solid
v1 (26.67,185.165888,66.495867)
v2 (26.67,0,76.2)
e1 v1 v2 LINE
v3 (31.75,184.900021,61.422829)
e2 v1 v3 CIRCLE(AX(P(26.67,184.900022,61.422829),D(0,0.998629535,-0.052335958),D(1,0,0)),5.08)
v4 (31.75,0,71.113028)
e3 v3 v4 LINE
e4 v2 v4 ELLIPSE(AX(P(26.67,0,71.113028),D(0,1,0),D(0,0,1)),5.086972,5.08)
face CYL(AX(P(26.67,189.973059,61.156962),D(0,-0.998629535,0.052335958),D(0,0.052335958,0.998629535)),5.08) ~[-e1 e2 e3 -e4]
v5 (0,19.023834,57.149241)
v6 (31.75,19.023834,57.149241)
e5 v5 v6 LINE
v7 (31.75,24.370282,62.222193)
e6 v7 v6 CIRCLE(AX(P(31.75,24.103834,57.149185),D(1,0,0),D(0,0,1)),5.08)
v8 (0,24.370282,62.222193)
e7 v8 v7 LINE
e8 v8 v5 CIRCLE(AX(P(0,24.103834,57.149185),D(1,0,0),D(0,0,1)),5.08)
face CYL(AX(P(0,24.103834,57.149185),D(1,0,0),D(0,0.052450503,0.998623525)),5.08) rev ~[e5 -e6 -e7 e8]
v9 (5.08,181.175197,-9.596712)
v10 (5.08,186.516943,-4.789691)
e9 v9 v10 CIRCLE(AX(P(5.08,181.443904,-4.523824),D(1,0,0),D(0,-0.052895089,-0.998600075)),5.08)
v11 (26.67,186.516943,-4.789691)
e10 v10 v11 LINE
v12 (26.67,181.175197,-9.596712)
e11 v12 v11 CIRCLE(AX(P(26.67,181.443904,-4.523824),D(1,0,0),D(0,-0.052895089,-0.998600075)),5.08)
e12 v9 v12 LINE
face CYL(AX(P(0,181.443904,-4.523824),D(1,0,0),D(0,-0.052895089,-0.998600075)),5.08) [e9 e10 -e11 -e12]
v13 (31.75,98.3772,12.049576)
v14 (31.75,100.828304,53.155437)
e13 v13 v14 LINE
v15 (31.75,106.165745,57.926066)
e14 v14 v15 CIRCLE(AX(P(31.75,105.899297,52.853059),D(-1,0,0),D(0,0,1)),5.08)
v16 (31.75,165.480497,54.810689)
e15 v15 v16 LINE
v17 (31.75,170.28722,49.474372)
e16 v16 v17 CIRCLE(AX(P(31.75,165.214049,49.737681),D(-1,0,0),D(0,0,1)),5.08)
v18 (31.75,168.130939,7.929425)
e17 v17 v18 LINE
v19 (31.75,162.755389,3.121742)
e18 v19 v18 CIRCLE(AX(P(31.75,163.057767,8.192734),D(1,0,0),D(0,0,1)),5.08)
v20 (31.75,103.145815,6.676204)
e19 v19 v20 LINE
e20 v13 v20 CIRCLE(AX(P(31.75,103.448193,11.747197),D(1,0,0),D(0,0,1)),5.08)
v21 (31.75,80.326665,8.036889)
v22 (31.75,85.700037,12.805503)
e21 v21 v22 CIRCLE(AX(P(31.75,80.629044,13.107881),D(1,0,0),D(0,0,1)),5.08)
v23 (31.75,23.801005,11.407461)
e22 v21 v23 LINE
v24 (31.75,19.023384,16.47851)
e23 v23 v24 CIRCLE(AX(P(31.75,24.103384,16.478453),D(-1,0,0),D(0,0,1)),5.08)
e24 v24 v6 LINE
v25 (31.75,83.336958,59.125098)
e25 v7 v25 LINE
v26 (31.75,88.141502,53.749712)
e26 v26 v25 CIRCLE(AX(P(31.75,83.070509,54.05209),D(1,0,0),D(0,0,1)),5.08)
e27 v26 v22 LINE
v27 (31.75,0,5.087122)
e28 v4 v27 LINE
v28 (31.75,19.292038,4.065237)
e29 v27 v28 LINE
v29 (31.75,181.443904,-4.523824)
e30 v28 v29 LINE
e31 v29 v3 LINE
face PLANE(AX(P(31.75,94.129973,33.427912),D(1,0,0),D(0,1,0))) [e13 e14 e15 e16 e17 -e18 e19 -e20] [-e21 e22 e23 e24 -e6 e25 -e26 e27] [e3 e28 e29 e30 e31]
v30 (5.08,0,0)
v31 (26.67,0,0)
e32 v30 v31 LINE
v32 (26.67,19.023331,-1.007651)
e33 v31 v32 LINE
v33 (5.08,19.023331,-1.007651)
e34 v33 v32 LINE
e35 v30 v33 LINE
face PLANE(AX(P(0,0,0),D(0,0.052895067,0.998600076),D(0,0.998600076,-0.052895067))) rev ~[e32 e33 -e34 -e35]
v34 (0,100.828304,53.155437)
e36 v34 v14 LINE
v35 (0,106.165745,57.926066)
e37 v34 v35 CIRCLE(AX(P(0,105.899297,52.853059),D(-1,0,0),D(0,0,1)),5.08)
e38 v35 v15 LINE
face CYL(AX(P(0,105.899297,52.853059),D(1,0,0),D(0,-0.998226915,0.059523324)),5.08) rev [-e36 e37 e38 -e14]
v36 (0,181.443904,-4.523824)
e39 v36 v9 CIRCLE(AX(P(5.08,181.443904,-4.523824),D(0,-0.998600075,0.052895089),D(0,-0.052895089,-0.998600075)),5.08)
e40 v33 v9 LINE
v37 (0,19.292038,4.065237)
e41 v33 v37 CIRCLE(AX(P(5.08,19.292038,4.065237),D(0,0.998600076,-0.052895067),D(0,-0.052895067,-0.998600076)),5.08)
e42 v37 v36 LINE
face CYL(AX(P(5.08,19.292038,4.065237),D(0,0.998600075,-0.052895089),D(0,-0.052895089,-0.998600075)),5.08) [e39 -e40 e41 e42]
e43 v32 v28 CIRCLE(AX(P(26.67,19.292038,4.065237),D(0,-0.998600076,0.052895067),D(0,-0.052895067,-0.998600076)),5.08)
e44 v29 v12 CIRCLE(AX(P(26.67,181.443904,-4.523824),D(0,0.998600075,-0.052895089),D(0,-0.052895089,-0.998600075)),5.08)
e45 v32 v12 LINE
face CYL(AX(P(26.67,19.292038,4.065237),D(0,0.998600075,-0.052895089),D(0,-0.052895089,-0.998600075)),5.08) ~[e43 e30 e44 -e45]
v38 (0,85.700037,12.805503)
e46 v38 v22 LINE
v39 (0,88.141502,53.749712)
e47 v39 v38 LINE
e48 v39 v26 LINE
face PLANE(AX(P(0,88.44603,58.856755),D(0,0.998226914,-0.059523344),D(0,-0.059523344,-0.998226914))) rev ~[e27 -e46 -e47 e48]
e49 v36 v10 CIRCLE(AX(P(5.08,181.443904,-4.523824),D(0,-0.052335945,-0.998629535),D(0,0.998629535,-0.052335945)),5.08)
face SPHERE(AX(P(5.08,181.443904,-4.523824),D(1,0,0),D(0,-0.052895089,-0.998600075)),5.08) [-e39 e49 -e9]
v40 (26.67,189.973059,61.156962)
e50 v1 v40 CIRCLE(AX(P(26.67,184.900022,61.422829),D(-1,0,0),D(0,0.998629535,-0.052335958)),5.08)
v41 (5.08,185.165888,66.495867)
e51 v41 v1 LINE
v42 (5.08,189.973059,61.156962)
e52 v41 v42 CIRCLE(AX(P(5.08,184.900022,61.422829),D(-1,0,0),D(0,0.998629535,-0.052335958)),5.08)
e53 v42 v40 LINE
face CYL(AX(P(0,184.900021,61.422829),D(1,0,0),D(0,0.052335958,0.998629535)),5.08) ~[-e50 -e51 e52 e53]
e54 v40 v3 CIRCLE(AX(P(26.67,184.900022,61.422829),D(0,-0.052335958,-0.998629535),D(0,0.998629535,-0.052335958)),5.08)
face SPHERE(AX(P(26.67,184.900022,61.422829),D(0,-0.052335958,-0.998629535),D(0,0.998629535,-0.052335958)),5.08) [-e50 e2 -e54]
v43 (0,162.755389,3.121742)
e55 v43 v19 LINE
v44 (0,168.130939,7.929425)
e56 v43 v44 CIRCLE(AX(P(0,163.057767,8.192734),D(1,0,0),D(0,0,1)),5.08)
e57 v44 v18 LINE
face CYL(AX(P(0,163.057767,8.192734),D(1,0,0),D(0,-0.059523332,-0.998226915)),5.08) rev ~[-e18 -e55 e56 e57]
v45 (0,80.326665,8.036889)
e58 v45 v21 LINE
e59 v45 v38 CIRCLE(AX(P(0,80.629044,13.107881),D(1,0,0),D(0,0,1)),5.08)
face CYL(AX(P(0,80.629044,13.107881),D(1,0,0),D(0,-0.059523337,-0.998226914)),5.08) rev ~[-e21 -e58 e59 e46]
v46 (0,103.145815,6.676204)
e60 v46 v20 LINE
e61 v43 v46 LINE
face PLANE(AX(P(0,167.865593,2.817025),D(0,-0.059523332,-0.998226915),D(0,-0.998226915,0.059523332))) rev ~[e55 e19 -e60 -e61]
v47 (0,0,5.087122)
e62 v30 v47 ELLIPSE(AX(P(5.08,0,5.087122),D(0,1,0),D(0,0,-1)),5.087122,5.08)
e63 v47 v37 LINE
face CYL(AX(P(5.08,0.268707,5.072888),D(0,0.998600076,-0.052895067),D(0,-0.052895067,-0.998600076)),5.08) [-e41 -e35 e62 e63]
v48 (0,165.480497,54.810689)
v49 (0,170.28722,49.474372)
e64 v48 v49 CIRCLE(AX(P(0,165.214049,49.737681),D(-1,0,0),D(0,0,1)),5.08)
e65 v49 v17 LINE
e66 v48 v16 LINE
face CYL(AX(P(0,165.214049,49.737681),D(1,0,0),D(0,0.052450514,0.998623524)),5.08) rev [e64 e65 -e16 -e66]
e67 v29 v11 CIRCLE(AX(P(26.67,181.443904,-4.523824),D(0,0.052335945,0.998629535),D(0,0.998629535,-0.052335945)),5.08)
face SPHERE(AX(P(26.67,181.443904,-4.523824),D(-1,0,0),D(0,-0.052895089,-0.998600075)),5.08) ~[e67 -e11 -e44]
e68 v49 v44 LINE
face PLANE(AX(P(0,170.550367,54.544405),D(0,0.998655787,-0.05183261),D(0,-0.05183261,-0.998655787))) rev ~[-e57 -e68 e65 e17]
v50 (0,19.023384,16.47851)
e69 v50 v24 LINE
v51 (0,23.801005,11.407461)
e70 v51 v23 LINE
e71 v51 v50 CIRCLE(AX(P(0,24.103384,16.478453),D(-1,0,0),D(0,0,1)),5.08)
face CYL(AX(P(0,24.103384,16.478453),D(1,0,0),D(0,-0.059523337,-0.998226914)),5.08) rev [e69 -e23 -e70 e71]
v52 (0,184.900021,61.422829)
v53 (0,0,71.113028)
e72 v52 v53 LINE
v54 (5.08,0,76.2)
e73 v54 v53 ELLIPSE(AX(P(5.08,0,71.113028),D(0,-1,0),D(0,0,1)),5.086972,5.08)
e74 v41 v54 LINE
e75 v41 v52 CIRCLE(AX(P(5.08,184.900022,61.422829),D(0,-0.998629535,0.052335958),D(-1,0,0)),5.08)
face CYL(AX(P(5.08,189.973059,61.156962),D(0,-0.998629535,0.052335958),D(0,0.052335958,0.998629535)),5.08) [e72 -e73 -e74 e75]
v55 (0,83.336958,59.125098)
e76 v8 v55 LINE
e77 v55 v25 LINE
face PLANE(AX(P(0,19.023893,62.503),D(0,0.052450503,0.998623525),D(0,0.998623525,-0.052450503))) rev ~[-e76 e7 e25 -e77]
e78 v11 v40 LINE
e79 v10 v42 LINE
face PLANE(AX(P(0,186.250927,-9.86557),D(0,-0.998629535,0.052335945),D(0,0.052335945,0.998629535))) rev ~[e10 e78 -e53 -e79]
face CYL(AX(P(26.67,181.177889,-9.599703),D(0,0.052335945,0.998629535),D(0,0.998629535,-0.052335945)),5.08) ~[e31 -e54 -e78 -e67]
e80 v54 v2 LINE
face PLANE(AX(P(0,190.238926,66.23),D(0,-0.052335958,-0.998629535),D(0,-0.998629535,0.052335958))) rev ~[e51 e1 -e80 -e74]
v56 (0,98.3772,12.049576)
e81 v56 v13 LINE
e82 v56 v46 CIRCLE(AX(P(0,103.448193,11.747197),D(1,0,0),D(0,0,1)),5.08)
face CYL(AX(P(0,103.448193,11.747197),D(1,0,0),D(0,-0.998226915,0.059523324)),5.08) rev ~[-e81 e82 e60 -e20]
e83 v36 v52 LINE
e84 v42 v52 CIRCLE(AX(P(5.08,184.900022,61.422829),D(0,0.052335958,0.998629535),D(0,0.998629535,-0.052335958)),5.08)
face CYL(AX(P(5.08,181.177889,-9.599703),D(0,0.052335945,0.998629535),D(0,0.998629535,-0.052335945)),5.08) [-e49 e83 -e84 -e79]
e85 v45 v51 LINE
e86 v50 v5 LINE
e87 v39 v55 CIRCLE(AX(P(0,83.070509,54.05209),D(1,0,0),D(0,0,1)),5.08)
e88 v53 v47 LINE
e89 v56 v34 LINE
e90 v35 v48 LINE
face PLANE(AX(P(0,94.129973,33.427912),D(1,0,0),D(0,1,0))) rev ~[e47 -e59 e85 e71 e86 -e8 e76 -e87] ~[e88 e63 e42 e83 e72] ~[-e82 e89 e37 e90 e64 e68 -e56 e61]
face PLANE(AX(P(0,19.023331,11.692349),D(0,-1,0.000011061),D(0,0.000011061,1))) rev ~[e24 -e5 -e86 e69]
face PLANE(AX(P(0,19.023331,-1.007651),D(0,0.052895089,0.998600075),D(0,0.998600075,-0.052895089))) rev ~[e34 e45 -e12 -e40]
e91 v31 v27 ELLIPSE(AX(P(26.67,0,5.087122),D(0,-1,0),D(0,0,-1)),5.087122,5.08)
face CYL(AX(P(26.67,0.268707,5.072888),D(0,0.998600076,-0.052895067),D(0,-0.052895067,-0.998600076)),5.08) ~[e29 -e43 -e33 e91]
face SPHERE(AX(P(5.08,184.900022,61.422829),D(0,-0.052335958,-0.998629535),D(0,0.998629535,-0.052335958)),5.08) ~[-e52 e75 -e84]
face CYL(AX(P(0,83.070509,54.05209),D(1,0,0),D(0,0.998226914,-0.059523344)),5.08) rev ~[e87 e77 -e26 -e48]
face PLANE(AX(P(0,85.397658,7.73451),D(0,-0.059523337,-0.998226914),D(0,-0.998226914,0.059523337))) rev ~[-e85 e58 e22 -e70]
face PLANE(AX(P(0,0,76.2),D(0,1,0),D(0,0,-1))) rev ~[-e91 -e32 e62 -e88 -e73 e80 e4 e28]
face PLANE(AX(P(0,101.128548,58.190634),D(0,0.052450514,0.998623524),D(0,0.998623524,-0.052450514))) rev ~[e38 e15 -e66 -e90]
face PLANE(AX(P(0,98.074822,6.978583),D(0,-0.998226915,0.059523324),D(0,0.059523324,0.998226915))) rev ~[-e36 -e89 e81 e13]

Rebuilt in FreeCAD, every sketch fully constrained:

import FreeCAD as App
import Part
import Sketcher
from FreeCAD import Vector
Q = App.Units.Quantity


def edges_at(feature, points):
    """Names of the edges that pass closest to the given points."""
    edges = feature.Shape.Edges
    near = lambda p: min(range(len(edges)), key=lambda i: edges[i].distToShape(Part.Vertex(*p))[0])
    return sorted({f"Edge{near(p) + 1}" for p in points})


def add_polygon(sketch, points):
    """Adds a closed chain of lines whose ends are joined by coincident constraints."""
    first, n = sketch.GeometryCount, len(points)
    for a, b in zip(points, points[1:] + points[:1]):
        sketch.addGeometry(Part.LineSegment(App.Vector(*a, 0), App.Vector(*b, 0)), False)
    for i in range(n):
        sketch.addConstraint(Sketcher.Constraint("Coincident", first + i, 2, first + (i + 1) % n, 1))

doc = App.newDocument("Part")
body = doc.addObject("PartDesign::Body", "Body")

sketch1 = doc.addObject("Sketcher::SketchObject", "Sketch")
body.addObject(sketch1)
sketch1.AttachmentSupport = (doc.YZ_Plane, [""])
sketch1.MapMode = "FlatFace"
add_polygon(sketch1, [(0, 0), (19.023331, -1.007651), (186.250927, -9.86557), (190.238926, 66.23), (0, 76.2)])
add_polygon(sketch1, [(98.074822, 6.978583), (101.128548, 58.190634), (170.550367, 54.544405), (167.865593, 2.817025)])
add_polygon(sketch1, [(85.397658, 7.73451), (19.023331, 11.692349), (19.023893, 62.503), (88.44603, 58.856755)])
sketch1.addConstraint([
    Sketcher.Constraint("Vertical", 4),
    Sketcher.Constraint("Coincident", 4, 2, -1, 1),
    Sketcher.Constraint("DistanceY", 4, 2, 4, 1, Q("3 in")),
    Sketcher.Constraint("Distance", 2, Q("3 in")),
    Sketcher.Constraint("Distance", 3, Q("7.5 in")),
    Sketcher.Constraint("DistanceY", 0, 2, 9, 2, Q("0.5 in")),
    Sketcher.Constraint("Distance", 0, Q("0.75 in")),
    Sketcher.Constraint("DistanceX", 8, 2, 1, 2, Q("3.4715002 in")),
    Sketcher.Constraint("DistanceY", -1, 1, 2, 2, Q("66.23 mm")),
    Sketcher.Constraint("DistanceY", -1, 1, 10, 2, Q("62.503 mm")),
    Sketcher.Constraint("DistanceX", 1, 2, 2, 2, Q("3.987999 mm")),
    Sketcher.Constraint("DistanceX", 9, 2, 11, 2, Q("69.422699 mm")),
    Sketcher.Constraint("Distance", 6, Q("69.517508 mm")),
    Sketcher.Constraint("Distance", 10, Q("50.810651 mm")),
    Sketcher.Constraint("Distance", 12, Q("51.21305 mm")),
    Sketcher.Constraint("DistanceX", -1, 1, 9, 2, Q("19.023331 mm")),
    Sketcher.Constraint("DistanceX", -1, 1, 12, 2, Q("85.397658 mm")),
    Sketcher.Constraint("DistanceY", -1, 1, 12, 2, Q("7.73451 mm")),
    Sketcher.Constraint("DistanceX", 5, 2, 1, 2, Q("85.122379 mm")),
    Sketcher.Constraint("DistanceX", 6, 2, 2, 2, Q("19.688559 mm")),
    Sketcher.Constraint("DistanceY", 7, 2, 6, 2, Q("51.72738 mm")),
    Sketcher.Constraint("DistanceX", 0, 2, 7, 2, Q("148.842262 mm")),
    Sketcher.Constraint("DistanceY", 8, 2, 5, 2, Q("51.212051 mm")),
    Sketcher.Constraint("DistanceY", 5, 2, 11, 2, Q("0.666121 mm")),
    Sketcher.Constraint("Distance", 11, Q("69.517827 mm")),
])
pad1 = doc.addObject("PartDesign::Pad", "Pad")
body.addObject(pad1)
pad1.Profile = sketch1
pad1.Length = Q("1.25 in")
doc.recompute()

fillet = doc.addObject("PartDesign::Fillet", "Fillet")
body.addObject(fillet)
fillet.Base = (pad1, edges_at(pad1, [
    (31.75, 188.245, 28.182),
    (0, 188.245, 28.182),
    (15.875, 190.239, 66.23),
    (15.875, 186.251, -9.866),
    (31.75, 102.637, -5.437),
    (31.75, 95.119, 71.215),
    (0, 95.119, 71.215),
    (0, 102.637, -5.437),
    (15.875, 167.866, 2.817),
    (15.875, 170.55, 54.544),
    (15.875, 101.129, 58.191),
    (15.875, 98.075, 6.979),
    (15.875, 88.446, 58.857),
    (15.875, 85.398, 7.735),
    (15.875, 19.023, 11.692),
    (15.875, 19.024, 62.503),
]))
fillet.Radius = Q("0.2 in")

doc.recompute()
